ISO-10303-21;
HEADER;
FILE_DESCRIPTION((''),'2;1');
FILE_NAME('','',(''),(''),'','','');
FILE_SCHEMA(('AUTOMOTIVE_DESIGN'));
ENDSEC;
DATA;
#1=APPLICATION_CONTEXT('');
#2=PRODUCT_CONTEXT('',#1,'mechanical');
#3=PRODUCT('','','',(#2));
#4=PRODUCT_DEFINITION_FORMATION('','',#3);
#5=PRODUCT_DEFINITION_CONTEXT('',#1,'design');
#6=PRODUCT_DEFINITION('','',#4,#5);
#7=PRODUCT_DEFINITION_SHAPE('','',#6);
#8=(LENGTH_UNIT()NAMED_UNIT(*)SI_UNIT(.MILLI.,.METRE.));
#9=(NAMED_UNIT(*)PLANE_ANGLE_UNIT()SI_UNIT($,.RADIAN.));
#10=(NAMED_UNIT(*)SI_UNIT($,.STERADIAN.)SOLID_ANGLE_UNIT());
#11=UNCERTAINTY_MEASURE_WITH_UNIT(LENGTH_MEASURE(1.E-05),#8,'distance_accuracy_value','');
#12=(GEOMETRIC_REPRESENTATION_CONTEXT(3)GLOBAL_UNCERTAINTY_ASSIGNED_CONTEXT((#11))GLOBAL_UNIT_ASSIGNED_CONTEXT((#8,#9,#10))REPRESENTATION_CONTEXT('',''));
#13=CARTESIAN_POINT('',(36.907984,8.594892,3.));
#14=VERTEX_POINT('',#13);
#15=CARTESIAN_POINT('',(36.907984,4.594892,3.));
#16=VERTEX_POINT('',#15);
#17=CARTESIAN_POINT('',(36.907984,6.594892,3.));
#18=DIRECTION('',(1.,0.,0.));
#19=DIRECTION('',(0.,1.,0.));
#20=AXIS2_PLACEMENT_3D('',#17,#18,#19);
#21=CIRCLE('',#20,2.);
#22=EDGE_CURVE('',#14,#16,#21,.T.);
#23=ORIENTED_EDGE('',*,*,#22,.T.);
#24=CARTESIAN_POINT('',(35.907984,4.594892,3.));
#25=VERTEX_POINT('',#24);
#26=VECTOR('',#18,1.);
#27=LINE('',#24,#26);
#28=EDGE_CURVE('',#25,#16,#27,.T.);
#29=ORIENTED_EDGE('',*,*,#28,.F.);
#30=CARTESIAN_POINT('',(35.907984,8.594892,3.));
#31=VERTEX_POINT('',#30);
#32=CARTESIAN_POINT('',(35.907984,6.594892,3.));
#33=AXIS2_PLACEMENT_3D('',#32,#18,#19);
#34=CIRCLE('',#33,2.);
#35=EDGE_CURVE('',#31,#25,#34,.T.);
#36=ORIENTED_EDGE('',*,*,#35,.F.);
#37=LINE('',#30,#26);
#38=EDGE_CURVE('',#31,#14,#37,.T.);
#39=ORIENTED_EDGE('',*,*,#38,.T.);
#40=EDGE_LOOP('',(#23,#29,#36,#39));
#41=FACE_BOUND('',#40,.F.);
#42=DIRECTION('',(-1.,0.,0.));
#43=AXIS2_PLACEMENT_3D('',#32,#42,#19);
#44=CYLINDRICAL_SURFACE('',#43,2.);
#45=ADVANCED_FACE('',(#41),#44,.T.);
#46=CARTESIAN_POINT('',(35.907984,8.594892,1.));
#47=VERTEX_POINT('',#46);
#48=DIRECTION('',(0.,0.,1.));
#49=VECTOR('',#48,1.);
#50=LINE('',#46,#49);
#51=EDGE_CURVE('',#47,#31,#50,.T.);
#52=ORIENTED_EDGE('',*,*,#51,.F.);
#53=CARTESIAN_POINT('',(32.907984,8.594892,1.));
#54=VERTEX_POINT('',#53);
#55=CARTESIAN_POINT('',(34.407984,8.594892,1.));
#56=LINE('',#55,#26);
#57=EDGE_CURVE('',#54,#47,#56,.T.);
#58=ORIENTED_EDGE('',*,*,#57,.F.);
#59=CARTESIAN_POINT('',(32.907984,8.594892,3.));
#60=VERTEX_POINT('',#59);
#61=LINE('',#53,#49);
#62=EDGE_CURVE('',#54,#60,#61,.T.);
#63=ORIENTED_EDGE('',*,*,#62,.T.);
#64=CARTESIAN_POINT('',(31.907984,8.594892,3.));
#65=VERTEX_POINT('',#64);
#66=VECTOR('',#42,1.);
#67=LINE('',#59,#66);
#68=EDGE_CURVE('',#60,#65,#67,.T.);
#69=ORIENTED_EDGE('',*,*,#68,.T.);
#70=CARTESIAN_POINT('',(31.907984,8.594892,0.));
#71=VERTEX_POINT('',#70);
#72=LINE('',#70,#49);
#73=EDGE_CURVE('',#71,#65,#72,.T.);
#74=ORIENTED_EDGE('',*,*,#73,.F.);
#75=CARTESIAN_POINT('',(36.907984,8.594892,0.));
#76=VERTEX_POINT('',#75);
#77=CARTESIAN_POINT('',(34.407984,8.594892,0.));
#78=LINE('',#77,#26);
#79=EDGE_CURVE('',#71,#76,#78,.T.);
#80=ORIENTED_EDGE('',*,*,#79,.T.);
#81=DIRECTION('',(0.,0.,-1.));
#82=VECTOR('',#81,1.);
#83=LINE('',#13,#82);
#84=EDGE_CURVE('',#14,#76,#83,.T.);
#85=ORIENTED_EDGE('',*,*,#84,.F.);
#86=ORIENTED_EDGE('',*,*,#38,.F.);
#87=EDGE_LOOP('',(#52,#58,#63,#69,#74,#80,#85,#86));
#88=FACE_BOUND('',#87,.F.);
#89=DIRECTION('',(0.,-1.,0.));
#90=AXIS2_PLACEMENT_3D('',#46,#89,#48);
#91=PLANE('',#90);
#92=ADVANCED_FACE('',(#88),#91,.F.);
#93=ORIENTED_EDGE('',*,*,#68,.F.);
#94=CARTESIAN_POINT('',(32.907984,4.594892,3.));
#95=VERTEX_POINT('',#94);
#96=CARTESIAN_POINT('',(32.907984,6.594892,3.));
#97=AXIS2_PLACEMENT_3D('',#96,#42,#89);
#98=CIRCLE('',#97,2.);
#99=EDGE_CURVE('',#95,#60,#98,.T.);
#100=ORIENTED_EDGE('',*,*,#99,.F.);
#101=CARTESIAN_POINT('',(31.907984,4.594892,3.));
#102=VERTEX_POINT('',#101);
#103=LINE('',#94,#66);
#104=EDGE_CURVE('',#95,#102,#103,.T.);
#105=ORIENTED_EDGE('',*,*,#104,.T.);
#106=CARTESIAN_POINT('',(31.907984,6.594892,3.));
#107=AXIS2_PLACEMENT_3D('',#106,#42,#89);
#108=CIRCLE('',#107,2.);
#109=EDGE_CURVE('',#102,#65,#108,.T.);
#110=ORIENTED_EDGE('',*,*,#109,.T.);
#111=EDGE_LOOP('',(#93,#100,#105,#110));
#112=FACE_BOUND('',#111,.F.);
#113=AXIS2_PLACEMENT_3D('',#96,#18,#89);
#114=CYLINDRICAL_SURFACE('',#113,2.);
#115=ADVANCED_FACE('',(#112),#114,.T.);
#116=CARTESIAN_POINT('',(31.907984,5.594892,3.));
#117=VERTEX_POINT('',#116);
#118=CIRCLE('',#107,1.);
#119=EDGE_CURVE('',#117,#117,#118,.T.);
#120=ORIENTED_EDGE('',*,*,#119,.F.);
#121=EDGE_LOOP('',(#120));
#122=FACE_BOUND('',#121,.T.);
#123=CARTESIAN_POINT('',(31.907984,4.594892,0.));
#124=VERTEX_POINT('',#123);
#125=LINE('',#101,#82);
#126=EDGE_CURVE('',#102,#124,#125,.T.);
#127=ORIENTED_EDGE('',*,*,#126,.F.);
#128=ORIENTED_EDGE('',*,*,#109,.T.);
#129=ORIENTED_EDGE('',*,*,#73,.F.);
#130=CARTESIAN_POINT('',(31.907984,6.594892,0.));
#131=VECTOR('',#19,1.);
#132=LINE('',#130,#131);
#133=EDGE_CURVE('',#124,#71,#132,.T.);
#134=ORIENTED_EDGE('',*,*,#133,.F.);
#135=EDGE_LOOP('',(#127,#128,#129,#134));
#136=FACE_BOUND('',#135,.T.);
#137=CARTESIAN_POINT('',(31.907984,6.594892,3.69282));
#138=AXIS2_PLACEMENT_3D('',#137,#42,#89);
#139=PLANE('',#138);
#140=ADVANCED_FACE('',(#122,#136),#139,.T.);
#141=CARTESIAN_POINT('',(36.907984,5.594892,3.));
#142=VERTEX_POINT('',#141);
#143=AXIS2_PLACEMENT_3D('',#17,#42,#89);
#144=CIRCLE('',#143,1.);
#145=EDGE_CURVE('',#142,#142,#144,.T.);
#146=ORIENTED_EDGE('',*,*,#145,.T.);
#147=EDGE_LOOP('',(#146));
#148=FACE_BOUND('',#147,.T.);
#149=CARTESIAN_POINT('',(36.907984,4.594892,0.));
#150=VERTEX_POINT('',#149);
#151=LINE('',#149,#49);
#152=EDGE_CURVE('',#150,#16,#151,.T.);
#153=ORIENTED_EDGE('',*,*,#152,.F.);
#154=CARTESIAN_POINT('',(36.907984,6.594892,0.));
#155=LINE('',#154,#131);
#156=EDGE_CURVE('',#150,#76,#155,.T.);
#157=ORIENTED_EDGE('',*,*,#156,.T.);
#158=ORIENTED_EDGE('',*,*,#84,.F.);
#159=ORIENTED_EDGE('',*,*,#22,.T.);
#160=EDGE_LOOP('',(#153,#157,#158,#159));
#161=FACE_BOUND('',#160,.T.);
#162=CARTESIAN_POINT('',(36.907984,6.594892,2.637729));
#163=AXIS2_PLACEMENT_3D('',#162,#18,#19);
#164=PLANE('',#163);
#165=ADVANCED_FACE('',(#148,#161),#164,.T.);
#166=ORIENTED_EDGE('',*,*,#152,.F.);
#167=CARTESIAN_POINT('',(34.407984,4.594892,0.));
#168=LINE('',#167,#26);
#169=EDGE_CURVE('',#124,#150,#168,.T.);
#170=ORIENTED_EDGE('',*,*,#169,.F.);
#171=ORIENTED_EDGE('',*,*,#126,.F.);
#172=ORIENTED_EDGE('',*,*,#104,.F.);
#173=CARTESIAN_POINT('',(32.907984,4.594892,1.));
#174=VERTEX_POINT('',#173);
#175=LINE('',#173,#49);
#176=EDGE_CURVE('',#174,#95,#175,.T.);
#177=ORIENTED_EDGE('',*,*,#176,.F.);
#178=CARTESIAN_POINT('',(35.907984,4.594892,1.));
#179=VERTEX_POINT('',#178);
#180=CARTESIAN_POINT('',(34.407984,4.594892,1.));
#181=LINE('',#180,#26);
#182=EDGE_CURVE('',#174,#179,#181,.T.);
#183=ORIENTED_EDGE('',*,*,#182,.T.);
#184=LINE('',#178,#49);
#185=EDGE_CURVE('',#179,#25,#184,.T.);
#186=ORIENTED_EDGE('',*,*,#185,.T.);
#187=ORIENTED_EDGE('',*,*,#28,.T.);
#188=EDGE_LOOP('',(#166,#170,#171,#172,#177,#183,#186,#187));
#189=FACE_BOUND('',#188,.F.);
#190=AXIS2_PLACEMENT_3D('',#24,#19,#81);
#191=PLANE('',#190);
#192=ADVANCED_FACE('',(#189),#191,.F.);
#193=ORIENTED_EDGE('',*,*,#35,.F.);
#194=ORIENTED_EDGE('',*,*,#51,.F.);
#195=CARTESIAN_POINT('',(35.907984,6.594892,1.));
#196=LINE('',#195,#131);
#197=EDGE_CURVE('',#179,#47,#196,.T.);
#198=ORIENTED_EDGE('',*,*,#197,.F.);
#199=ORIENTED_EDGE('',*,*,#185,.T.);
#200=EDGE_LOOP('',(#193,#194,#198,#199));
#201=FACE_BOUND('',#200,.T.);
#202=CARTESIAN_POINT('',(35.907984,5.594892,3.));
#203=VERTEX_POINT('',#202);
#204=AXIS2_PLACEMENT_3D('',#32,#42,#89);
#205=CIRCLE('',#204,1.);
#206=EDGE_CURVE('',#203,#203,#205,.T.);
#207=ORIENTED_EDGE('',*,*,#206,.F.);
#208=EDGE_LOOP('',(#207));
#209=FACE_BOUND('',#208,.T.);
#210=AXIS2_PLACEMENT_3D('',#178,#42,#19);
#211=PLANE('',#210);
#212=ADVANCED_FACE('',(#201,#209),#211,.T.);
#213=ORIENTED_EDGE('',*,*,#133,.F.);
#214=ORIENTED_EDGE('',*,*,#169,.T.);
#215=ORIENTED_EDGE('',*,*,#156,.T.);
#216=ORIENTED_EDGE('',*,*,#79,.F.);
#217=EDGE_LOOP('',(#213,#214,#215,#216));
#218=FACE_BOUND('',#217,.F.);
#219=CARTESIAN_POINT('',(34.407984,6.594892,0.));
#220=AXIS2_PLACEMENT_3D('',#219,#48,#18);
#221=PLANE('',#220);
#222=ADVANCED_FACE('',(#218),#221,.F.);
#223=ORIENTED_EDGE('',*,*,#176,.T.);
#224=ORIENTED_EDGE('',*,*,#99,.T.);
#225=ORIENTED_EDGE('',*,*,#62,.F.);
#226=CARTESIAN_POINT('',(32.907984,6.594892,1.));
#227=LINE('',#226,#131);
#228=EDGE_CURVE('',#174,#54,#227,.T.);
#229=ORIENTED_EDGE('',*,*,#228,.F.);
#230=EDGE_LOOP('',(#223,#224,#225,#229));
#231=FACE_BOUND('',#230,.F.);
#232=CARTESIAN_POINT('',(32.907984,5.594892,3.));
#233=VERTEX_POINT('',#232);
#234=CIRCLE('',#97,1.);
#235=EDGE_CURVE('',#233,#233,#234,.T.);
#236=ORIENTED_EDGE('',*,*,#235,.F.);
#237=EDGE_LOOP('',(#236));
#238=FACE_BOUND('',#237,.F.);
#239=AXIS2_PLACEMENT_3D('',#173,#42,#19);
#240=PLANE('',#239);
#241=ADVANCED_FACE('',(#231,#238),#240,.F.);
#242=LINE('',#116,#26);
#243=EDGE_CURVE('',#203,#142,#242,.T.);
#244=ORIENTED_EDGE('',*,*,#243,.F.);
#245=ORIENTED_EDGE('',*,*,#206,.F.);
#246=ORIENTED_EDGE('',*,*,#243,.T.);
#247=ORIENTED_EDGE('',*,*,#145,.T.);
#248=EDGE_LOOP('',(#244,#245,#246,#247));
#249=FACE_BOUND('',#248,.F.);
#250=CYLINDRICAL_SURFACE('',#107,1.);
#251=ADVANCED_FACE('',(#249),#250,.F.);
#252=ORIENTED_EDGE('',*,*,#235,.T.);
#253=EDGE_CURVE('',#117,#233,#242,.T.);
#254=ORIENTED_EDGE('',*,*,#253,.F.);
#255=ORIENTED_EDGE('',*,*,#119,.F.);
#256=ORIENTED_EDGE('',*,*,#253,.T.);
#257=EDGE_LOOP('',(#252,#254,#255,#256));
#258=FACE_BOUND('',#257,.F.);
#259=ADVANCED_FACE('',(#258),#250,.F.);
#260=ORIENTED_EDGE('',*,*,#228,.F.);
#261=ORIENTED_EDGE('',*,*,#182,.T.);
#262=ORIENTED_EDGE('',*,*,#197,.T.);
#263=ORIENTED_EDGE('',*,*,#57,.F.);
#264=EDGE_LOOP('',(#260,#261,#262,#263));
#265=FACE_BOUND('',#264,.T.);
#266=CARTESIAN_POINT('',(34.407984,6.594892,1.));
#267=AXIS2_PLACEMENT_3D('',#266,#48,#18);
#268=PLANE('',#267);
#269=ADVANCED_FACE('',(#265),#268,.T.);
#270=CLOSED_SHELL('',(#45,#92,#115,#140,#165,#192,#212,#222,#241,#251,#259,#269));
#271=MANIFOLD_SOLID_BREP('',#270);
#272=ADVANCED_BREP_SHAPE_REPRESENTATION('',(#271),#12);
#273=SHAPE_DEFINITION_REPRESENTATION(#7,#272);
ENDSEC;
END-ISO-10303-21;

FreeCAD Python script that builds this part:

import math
import FreeCAD as App
import Part
import Sketcher
Q = App.Units.Quantity

doc = App.newDocument("Part")
body = doc.addObject("PartDesign::Body", "Body")

# Sketch on XY plane
sketch1 = body.newObject("Sketcher::SketchObject", "Sketch")
sketch1.AttachmentSupport = (doc.getObject("XY_Plane"), [""])
sketch1.MapMode = "FlatFace"
sketch1.addGeometry(Part.LineSegment(App.Vector(31.907984, 8.594892, 0), App.Vector(31.907984, 4.594892, 0)), False)
sketch1.addGeometry(Part.LineSegment(App.Vector(31.907984, 4.594892, 0), App.Vector(36.907984, 4.594892, 0)), False)
sketch1.addGeometry(Part.LineSegment(App.Vector(36.907984, 4.594892, 0), App.Vector(36.907984, 8.594892, 0)), False)
sketch1.addGeometry(Part.LineSegment(App.Vector(36.907984, 8.594892, 0), App.Vector(31.907984, 8.594892, 0)), False)
sketch1.addConstraint(Sketcher.Constraint("Coincident", 0, 2, 1, 1))
sketch1.addConstraint(Sketcher.Constraint("Coincident", 1, 2, 2, 1))
sketch1.addConstraint(Sketcher.Constraint("Coincident", 2, 2, 3, 1))
sketch1.addConstraint(Sketcher.Constraint("Coincident", 3, 2, 0, 1))
sketch1.addConstraint(Sketcher.Constraint("Vertical", 0))
sketch1.addConstraint(Sketcher.Constraint("Horizontal", 1))
sketch1.addConstraint(Sketcher.Constraint("Vertical", 2))
sketch1.addConstraint(Sketcher.Constraint("Horizontal", 3))
sketch1.addConstraint(Sketcher.Constraint("DistanceX", 1, 1, 1, 2, Q("5 mm")))
sketch1.addConstraint(Sketcher.Constraint("DistanceY", 0, 2, 0, 1, Q("4 mm")))
sketch1.addConstraint(Sketcher.Constraint("DistanceX", -1, 1, 0, 2, Q("31.907984 mm")))
sketch1.addConstraint(Sketcher.Constraint("DistanceY", -1, 1, 0, 2, Q("4.594892 mm")))
pad1 = body.newObject("PartDesign::Pad", "Pad")
pad1.Profile = sketch1
pad1.Length = 1
body2 = doc.addObject("PartDesign::Body", "Body001")

# Sketch on XY plane
sketch2 = body2.newObject("Sketcher::SketchObject", "Sketch001")
sketch2.AttachmentSupport = (doc.getObject("XY_Plane001"), [""])
sketch2.MapMode = "FlatFace"
sketch2.AttachmentOffset = App.Placement(App.Vector(0, 0, 1), App.Rotation())
sketch2.addGeometry(Part.LineSegment(App.Vector(32.907984, 8.594892, 0), App.Vector(32.907984, 4.594892, 0)), False)
sketch2.addGeometry(Part.LineSegment(App.Vector(32.907984, 4.594892, 0), App.Vector(35.907984, 4.594892, 0)), False)
sketch2.addGeometry(Part.LineSegment(App.Vector(35.907984, 4.594892, 0), App.Vector(35.907984, 8.594892, 0)), False)
sketch2.addGeometry(Part.LineSegment(App.Vector(35.907984, 8.594892, 0), App.Vector(32.907984, 8.594892, 0)), False)
sketch2.addConstraint(Sketcher.Constraint("Coincident", 0, 2, 1, 1))
sketch2.addConstraint(Sketcher.Constraint("Coincident", 1, 2, 2, 1))
sketch2.addConstraint(Sketcher.Constraint("Coincident", 2, 2, 3, 1))
sketch2.addConstraint(Sketcher.Constraint("Coincident", 3, 2, 0, 1))
sketch2.addConstraint(Sketcher.Constraint("Vertical", 0))
sketch2.addConstraint(Sketcher.Constraint("Horizontal", 1))
sketch2.addConstraint(Sketcher.Constraint("Vertical", 2))
sketch2.addConstraint(Sketcher.Constraint("Horizontal", 3))
sketch2.addConstraint(Sketcher.Constraint("DistanceX", 1, 1, 1, 2, Q("3 mm")))
sketch2.addConstraint(Sketcher.Constraint("DistanceY", 0, 2, 0, 1, Q("4 mm")))
sketch2.addConstraint(Sketcher.Constraint("DistanceX", -1, 1, 0, 2, Q("32.907984 mm")))
sketch2.addConstraint(Sketcher.Constraint("DistanceY", -1, 1, 0, 2, Q("4.594892 mm")))
pad2 = body2.newObject("PartDesign::Pad", "Pad001")
pad2.Profile = sketch2
pad2.Length = 4
doc.recompute()

boolean = body.newObject("PartDesign::Boolean", "Boolean")
boolean.Type = "Fuse"
boolean.addObjects([body2])

# Sketch on YZ plane
sketch3 = body.newObject("Sketcher::SketchObject", "Sketch002")
sketch3.AttachmentSupport = (doc.getObject("YZ_Plane"), [""])
sketch3.MapMode = "FlatFace"
sketch3.AttachmentOffset = App.Placement(App.Vector(0, 0, 32.907984), App.Rotation())
sketch3.addGeometry(Part.ArcOfCircle(Part.Circle(App.Vector(6.594892, 3, 0), App.Vector(0, 0, 1), 2), math.radians(0), math.radians(180)), False)
sketch3.addGeometry(Part.LineSegment(App.Vector(8.594892, 3, 0), App.Vector(8.594892, 1, 0)), False)
sketch3.addGeometry(Part.LineSegment(App.Vector(8.594892, 1, 0), App.Vector(4.594892, 1, 0)), False)
sketch3.addGeometry(Part.LineSegment(App.Vector(4.594892, 1, 0), App.Vector(4.594892, 3, 0)), False)
sketch3.addConstraint(Sketcher.Constraint("Tangent", 0, 1, 1, 1))
sketch3.addConstraint(Sketcher.Constraint("Coincident", 1, 2, 2, 1))
sketch3.addConstraint(Sketcher.Constraint("Coincident", 2, 2, 3, 1))
sketch3.addConstraint(Sketcher.Constraint("Tangent", 3, 2, 0, 2))
sketch3.addConstraint(Sketcher.Constraint("Vertical", 1))
sketch3.addConstraint(Sketcher.Constraint("Horizontal", 2))
sketch3.addConstraint(Sketcher.Constraint("Vertical", 3))
sketch3.addConstraint(Sketcher.Constraint("Radius", 0, Q("2 mm")))
sketch3.addConstraint(Sketcher.Constraint("DistanceY", 1, 2, 1, 1, Q("2 mm")))
sketch3.addConstraint(Sketcher.Constraint("DistanceY", -1, 1, 0, 3, Q("3 mm")))
sketch3.addConstraint(Sketcher.Constraint("DistanceX", -1, 1, 0, 3, Q("6.594892 mm")))
pad3 = body.newObject("PartDesign::Pad", "Pad002")
pad3.Profile = sketch3
pad3.Length = 1
pad3.Reversed = True

# Sketch on YZ plane
sketch4 = body.newObject("Sketcher::SketchObject", "Sketch003")
sketch4.AttachmentSupport = (doc.getObject("YZ_Plane"), [""])
sketch4.MapMode = "FlatFace"
sketch4.AttachmentOffset = App.Placement(App.Vector(0, 0, 35.907984), App.Rotation())
sketch4.addGeometry(Part.ArcOfCircle(Part.Circle(App.Vector(6.594892, 3, 0), App.Vector(0, 0, 1), 2), math.radians(0), math.radians(180)), False)
sketch4.addGeometry(Part.LineSegment(App.Vector(4.594892, 3, 0), App.Vector(4.594892, 1, 0)), False)
sketch4.addGeometry(Part.LineSegment(App.Vector(4.594892, 1, 0), App.Vector(8.594892, 1, 0)), False)
sketch4.addGeometry(Part.LineSegment(App.Vector(8.594892, 1, 0), App.Vector(8.594892, 3, 0)), False)
sketch4.addConstraint(Sketcher.Constraint("Tangent", 0, 2, 1, 1))
sketch4.addConstraint(Sketcher.Constraint("Coincident", 1, 2, 2, 1))
sketch4.addConstraint(Sketcher.Constraint("Coincident", 2, 2, 3, 1))
sketch4.addConstraint(Sketcher.Constraint("Tangent", 3, 2, 0, 1))
sketch4.addConstraint(Sketcher.Constraint("Vertical", 1))
sketch4.addConstraint(Sketcher.Constraint("Horizontal", 2))
sketch4.addConstraint(Sketcher.Constraint("Vertical", 3))
sketch4.addConstraint(Sketcher.Constraint("Radius", 0, Q("2 mm")))
sketch4.addConstraint(Sketcher.Constraint("DistanceY", 1, 2, 1, 1, Q("2 mm")))
sketch4.addConstraint(Sketcher.Constraint("DistanceY", -1, 1, 0, 3, Q("3 mm")))
sketch4.addConstraint(Sketcher.Constraint("DistanceX", -1, 1, 0, 3, Q("6.594892 mm")))
pad4 = body.newObject("PartDesign::Pad", "Pad003")
pad4.Profile = sketch4
pad4.Length = 1

# Sketch on XY plane
sketch5 = body.newObject("Sketcher::SketchObject", "Sketch004")
sketch5.AttachmentSupport = (doc.getObject("XY_Plane"), [""])
sketch5.MapMode = "FlatFace"
sketch5.AttachmentOffset = App.Placement(App.Vector(0, 0, 1), App.Rotation())
sketch5.addGeometry(Part.LineSegment(App.Vector(32.907984, 8.594892, 0), App.Vector(32.907984, 4.594892, 0)), False)
sketch5.addGeometry(Part.LineSegment(App.Vector(32.907984, 4.594892, 0), App.Vector(35.907984, 4.594892, 0)), False)
sketch5.addGeometry(Part.LineSegment(App.Vector(35.907984, 4.594892, 0), App.Vector(35.907984, 8.594892, 0)), False)
sketch5.addGeometry(Part.LineSegment(App.Vector(35.907984, 8.594892, 0), App.Vector(32.907984, 8.594892, 0)), False)
sketch5.addConstraint(Sketcher.Constraint("Coincident", 0, 2, 1, 1))
sketch5.addConstraint(Sketcher.Constraint("Coincident", 1, 2, 2, 1))
sketch5.addConstraint(Sketcher.Constraint("Coincident", 2, 2, 3, 1))
sketch5.addConstraint(Sketcher.Constraint("Coincident", 3, 2, 0, 1))
sketch5.addConstraint(Sketcher.Constraint("Vertical", 0))
sketch5.addConstraint(Sketcher.Constraint("Horizontal", 1))
sketch5.addConstraint(Sketcher.Constraint("Vertical", 2))
sketch5.addConstraint(Sketcher.Constraint("Horizontal", 3))
sketch5.addConstraint(Sketcher.Constraint("DistanceX", 1, 1, 1, 2, Q("3 mm")))
sketch5.addConstraint(Sketcher.Constraint("DistanceY", 0, 2, 0, 1, Q("4 mm")))
sketch5.addConstraint(Sketcher.Constraint("DistanceX", -1, 1, 0, 2, Q("32.907984 mm")))
sketch5.addConstraint(Sketcher.Constraint("DistanceY", -1, 1, 0, 2, Q("4.594892 mm")))
pocket1 = body.newObject("PartDesign::Pocket", "Pocket")
pocket1.Profile = sketch5
pocket1.Length = 25
pocket1.Reversed = True

# Sketch on YZ plane
sketch6 = body.newObject("Sketcher::SketchObject", "Sketch005")
sketch6.AttachmentSupport = (doc.getObject("YZ_Plane"), [""])
sketch6.MapMode = "FlatFace"
sketch6.AttachmentOffset = App.Placement(App.Vector(0, 0, 31.907984), App.Rotation())
sketch6.addGeometry(Part.Circle(App.Vector(6.594892, 3, 0), App.Vector(0, 0, 1), 1), False)
sketch6.addConstraint(Sketcher.Constraint("Diameter", 0, Q("2 mm")))
sketch6.addConstraint(Sketcher.Constraint("DistanceY", -1, 1, 0, 3, Q("3 mm")))
sketch6.addConstraint(Sketcher.Constraint("DistanceX", -1, 1, 0, 3, Q("6.594892 mm")))
pocket2 = body.newObject("PartDesign::Pocket", "Pocket001")
pocket2.Profile = sketch6
pocket2.Length = 25
pocket2.Reversed = True

doc.recompute()
